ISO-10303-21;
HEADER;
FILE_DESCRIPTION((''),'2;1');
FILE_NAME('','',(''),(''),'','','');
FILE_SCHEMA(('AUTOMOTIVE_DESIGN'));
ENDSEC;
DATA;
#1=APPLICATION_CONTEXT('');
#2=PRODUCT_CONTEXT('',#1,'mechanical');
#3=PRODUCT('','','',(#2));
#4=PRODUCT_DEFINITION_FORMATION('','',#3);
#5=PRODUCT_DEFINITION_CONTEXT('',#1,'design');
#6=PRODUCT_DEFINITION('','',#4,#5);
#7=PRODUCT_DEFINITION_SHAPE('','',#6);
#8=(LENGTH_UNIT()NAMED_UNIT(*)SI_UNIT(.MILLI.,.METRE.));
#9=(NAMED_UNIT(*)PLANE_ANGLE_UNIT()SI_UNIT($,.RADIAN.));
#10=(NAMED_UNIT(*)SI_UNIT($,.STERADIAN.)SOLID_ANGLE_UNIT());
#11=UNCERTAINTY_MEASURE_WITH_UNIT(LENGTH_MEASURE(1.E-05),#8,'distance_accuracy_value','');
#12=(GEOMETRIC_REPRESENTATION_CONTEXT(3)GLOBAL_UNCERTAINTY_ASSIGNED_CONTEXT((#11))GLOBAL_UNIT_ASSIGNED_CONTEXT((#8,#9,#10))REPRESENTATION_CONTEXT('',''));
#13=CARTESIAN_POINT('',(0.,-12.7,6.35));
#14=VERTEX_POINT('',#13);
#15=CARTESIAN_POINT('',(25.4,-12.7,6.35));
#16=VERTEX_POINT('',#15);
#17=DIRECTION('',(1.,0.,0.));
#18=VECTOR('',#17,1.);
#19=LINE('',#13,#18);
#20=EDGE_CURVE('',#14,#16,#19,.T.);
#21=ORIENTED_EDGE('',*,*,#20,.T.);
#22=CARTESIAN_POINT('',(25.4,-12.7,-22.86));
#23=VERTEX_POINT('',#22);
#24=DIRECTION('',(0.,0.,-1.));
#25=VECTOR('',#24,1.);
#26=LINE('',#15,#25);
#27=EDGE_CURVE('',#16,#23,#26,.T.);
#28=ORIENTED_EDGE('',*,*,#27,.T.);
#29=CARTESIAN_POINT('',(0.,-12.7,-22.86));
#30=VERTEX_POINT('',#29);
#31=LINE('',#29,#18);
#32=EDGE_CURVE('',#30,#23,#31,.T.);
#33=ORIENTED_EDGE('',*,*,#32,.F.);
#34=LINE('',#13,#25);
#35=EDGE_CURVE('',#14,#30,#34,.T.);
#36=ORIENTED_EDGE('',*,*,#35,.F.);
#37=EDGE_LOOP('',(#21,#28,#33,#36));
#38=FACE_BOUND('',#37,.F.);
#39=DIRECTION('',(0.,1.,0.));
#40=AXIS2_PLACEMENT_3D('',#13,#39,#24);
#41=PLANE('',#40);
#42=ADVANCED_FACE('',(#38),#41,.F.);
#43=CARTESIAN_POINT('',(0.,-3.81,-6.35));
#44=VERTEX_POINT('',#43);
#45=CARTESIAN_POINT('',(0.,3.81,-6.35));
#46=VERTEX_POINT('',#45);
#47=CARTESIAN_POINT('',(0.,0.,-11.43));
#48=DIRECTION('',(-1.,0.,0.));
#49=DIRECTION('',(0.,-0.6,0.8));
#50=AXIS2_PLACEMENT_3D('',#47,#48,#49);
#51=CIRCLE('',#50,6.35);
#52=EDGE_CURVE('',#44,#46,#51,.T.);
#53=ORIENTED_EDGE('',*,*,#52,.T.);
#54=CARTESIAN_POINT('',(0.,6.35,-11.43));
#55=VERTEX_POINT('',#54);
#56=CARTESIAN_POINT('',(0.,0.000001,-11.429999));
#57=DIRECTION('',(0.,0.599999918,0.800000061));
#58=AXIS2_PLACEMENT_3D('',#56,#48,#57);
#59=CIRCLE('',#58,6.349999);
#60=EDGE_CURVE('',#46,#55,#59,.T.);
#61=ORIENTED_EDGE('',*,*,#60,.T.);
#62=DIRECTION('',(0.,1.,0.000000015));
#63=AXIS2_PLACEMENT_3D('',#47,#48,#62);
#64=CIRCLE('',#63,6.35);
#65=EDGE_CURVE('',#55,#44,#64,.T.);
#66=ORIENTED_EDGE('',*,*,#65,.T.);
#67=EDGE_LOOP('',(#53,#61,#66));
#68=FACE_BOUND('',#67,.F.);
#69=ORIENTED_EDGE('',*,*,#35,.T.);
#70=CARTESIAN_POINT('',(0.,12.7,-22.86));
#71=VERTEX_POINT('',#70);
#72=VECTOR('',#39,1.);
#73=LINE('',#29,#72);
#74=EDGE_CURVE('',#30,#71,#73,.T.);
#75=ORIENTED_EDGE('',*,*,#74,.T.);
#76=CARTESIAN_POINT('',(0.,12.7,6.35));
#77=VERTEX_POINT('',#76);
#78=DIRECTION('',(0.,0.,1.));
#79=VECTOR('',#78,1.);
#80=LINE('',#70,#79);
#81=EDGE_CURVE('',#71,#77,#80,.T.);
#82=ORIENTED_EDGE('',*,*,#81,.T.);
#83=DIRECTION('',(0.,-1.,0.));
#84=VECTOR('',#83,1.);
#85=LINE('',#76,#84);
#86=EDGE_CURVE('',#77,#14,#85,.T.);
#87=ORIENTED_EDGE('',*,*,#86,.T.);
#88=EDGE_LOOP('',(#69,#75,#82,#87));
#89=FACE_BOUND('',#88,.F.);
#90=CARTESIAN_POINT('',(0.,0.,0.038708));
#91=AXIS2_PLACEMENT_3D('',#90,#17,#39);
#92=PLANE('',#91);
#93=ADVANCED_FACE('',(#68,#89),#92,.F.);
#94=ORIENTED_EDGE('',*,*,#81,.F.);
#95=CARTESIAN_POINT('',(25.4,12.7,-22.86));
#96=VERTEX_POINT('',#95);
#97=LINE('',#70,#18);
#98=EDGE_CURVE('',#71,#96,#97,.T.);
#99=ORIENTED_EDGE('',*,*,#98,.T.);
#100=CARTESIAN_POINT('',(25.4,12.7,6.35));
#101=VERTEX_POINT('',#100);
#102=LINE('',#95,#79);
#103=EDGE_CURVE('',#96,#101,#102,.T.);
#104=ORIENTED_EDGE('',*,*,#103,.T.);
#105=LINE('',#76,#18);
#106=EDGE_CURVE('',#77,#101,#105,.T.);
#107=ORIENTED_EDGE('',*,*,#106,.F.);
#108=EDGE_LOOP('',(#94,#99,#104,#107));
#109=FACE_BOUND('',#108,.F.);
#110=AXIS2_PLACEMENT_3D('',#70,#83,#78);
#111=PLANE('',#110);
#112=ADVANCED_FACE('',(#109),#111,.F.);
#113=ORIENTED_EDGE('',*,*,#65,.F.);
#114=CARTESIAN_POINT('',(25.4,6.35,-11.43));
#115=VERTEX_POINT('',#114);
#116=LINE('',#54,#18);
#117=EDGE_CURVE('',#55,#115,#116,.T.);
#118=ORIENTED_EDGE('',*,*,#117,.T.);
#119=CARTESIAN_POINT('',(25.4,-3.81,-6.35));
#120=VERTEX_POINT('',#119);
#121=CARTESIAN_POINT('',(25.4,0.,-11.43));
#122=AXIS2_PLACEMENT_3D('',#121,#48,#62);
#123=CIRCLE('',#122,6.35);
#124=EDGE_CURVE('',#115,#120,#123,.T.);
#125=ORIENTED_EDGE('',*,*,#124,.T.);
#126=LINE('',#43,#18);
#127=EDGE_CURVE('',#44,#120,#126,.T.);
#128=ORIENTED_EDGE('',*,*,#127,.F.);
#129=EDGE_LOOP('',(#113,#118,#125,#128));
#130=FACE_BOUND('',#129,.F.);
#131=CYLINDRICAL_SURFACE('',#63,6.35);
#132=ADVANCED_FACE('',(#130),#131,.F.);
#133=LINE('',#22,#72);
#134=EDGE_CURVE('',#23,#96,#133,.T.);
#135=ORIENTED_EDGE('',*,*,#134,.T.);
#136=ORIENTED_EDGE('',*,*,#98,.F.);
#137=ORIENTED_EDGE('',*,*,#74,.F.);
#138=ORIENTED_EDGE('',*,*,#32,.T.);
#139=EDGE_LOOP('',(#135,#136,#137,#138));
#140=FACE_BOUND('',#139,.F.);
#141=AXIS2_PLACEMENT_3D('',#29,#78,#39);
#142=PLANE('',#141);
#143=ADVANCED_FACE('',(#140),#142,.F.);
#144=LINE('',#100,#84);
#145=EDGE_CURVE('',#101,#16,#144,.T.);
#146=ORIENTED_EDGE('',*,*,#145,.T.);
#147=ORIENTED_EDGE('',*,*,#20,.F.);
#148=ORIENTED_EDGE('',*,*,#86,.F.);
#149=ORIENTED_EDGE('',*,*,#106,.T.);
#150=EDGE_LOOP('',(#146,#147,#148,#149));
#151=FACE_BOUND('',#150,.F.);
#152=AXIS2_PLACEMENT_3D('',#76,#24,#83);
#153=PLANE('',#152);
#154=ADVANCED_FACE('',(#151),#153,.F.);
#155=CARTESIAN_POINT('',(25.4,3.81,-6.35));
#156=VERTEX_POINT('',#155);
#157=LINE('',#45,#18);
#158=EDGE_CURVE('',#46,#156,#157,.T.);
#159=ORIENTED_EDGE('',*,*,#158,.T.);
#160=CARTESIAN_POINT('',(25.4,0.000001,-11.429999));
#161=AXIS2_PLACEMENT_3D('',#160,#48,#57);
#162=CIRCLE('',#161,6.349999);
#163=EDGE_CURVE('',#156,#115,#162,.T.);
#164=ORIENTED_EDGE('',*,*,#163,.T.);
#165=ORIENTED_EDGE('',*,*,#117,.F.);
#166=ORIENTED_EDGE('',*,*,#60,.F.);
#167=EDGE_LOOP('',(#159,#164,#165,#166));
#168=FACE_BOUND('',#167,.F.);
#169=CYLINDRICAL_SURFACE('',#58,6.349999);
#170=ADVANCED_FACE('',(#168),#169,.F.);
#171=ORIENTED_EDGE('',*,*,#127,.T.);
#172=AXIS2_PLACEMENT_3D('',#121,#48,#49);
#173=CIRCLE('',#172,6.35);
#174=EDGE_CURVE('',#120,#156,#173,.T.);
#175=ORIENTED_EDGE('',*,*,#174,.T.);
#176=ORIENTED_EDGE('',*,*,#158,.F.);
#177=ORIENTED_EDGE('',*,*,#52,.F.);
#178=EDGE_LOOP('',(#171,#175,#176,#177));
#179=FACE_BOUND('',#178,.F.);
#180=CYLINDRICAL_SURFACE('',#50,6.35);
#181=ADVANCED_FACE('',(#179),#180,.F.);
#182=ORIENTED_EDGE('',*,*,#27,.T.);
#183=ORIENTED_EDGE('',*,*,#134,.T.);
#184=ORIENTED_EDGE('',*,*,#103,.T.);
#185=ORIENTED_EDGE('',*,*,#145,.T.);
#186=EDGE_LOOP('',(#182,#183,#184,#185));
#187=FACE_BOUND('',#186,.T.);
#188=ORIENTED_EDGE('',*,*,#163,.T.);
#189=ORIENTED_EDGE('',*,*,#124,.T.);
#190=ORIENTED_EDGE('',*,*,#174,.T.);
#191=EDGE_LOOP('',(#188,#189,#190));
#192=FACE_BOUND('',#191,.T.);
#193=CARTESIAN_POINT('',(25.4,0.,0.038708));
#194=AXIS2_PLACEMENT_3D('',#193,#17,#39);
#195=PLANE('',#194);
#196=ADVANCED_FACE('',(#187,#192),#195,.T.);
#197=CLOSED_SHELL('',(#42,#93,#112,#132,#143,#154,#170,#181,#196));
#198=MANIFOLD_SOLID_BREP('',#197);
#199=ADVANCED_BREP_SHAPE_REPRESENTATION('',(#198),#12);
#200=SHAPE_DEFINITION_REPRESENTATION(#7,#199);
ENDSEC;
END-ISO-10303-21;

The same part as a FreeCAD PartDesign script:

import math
import FreeCAD as App
import Part
import Sketcher
from FreeCAD import Vector
Q = App.Units.Quantity

doc = App.newDocument("Part")
body = doc.addObject("PartDesign::Body", "Body")

# Sketch on YZ plane
sketch1 = doc.addObject("Sketcher::SketchObject", "Sketch")
body.addObject(sketch1)
sketch1.AttachmentSupport = (doc.YZ_Plane, [""])
sketch1.MapMode = "FlatFace"
sketch1.addGeometry([
    Part.LineSegment(Vector(13, 6, 0), Vector(-13, 6, 0)),  # 0
    Part.LineSegment(Vector(-13, 6, 0), Vector(-13, -23, 0)),  # 1
    Part.LineSegment(Vector(-13, -23, 0), Vector(13, -23, 0)),  # 2
    Part.LineSegment(Vector(13, -23, 0), Vector(13, 6, 0)),  # 3
    Part.ArcOfCircle(Part.Circle(Vector(0, -11, 0), Vector(0, 0, 1), 6), math.radians(53), math.radians(127)),  # 4
    Part.ArcOfCircle(Part.Circle(Vector(0, -11, 0), Vector(0, 0, 1), 6), math.radians(0), math.radians(53)),  # 5
    Part.ArcOfCircle(Part.Circle(Vector(0, -11, 0), Vector(0, 0, 1), 6), math.radians(127), math.radians(360)),  # 6
], False)
sketch1.addConstraint([
    Sketcher.Constraint("Coincident", 0, 2, 1, 1),
    Sketcher.Constraint("Coincident", 1, 2, 2, 1),
    Sketcher.Constraint("Coincident", 2, 2, 3, 1),
    Sketcher.Constraint("Coincident", 3, 2, 0, 1),
    Sketcher.Constraint("Tangent", 4, 1, 5, 2),
    Sketcher.Constraint("Tangent", 5, 1, 6, 2),
    Sketcher.Constraint("Tangent", 6, 1, 4, 2),
    Sketcher.Constraint("Horizontal", 0),
    Sketcher.Constraint("Vertical", 1),
    Sketcher.Constraint("Horizontal", 2),
    Sketcher.Constraint("Vertical", 3),
    Sketcher.Constraint("Symmetric", 4, 1, 6, 1, -2),
    Sketcher.Constraint("Horizontal", 6, 3, 5, 1),
    Sketcher.Constraint("DistanceX", 0, 2, 0, 1, Q("1 in")),
    Sketcher.Constraint("Radius", 4, Q("0.25 in")),
    Sketcher.Constraint("DistanceY", 1, 2, 1, 1, Q("1.15 in")),
    Sketcher.Constraint("DistanceX", 0, 2, -1, 1, Q("0.5 in")),
    Sketcher.Constraint("DistanceY", 1, 2, -1, 1, Q("0.9 in")),
    Sketcher.Constraint("DistanceY", 4, 3, 0, 2, Q("0.7 in")),
    Sketcher.Constraint("DistanceY", 5, 3, 4, 1, Q("0.2 in")),
])
pad1 = doc.addObject("PartDesign::Pad", "Pad")
body.addObject(pad1)
pad1.Profile = sketch1
pad1.Length = Q("1 in")

doc.recompute()
